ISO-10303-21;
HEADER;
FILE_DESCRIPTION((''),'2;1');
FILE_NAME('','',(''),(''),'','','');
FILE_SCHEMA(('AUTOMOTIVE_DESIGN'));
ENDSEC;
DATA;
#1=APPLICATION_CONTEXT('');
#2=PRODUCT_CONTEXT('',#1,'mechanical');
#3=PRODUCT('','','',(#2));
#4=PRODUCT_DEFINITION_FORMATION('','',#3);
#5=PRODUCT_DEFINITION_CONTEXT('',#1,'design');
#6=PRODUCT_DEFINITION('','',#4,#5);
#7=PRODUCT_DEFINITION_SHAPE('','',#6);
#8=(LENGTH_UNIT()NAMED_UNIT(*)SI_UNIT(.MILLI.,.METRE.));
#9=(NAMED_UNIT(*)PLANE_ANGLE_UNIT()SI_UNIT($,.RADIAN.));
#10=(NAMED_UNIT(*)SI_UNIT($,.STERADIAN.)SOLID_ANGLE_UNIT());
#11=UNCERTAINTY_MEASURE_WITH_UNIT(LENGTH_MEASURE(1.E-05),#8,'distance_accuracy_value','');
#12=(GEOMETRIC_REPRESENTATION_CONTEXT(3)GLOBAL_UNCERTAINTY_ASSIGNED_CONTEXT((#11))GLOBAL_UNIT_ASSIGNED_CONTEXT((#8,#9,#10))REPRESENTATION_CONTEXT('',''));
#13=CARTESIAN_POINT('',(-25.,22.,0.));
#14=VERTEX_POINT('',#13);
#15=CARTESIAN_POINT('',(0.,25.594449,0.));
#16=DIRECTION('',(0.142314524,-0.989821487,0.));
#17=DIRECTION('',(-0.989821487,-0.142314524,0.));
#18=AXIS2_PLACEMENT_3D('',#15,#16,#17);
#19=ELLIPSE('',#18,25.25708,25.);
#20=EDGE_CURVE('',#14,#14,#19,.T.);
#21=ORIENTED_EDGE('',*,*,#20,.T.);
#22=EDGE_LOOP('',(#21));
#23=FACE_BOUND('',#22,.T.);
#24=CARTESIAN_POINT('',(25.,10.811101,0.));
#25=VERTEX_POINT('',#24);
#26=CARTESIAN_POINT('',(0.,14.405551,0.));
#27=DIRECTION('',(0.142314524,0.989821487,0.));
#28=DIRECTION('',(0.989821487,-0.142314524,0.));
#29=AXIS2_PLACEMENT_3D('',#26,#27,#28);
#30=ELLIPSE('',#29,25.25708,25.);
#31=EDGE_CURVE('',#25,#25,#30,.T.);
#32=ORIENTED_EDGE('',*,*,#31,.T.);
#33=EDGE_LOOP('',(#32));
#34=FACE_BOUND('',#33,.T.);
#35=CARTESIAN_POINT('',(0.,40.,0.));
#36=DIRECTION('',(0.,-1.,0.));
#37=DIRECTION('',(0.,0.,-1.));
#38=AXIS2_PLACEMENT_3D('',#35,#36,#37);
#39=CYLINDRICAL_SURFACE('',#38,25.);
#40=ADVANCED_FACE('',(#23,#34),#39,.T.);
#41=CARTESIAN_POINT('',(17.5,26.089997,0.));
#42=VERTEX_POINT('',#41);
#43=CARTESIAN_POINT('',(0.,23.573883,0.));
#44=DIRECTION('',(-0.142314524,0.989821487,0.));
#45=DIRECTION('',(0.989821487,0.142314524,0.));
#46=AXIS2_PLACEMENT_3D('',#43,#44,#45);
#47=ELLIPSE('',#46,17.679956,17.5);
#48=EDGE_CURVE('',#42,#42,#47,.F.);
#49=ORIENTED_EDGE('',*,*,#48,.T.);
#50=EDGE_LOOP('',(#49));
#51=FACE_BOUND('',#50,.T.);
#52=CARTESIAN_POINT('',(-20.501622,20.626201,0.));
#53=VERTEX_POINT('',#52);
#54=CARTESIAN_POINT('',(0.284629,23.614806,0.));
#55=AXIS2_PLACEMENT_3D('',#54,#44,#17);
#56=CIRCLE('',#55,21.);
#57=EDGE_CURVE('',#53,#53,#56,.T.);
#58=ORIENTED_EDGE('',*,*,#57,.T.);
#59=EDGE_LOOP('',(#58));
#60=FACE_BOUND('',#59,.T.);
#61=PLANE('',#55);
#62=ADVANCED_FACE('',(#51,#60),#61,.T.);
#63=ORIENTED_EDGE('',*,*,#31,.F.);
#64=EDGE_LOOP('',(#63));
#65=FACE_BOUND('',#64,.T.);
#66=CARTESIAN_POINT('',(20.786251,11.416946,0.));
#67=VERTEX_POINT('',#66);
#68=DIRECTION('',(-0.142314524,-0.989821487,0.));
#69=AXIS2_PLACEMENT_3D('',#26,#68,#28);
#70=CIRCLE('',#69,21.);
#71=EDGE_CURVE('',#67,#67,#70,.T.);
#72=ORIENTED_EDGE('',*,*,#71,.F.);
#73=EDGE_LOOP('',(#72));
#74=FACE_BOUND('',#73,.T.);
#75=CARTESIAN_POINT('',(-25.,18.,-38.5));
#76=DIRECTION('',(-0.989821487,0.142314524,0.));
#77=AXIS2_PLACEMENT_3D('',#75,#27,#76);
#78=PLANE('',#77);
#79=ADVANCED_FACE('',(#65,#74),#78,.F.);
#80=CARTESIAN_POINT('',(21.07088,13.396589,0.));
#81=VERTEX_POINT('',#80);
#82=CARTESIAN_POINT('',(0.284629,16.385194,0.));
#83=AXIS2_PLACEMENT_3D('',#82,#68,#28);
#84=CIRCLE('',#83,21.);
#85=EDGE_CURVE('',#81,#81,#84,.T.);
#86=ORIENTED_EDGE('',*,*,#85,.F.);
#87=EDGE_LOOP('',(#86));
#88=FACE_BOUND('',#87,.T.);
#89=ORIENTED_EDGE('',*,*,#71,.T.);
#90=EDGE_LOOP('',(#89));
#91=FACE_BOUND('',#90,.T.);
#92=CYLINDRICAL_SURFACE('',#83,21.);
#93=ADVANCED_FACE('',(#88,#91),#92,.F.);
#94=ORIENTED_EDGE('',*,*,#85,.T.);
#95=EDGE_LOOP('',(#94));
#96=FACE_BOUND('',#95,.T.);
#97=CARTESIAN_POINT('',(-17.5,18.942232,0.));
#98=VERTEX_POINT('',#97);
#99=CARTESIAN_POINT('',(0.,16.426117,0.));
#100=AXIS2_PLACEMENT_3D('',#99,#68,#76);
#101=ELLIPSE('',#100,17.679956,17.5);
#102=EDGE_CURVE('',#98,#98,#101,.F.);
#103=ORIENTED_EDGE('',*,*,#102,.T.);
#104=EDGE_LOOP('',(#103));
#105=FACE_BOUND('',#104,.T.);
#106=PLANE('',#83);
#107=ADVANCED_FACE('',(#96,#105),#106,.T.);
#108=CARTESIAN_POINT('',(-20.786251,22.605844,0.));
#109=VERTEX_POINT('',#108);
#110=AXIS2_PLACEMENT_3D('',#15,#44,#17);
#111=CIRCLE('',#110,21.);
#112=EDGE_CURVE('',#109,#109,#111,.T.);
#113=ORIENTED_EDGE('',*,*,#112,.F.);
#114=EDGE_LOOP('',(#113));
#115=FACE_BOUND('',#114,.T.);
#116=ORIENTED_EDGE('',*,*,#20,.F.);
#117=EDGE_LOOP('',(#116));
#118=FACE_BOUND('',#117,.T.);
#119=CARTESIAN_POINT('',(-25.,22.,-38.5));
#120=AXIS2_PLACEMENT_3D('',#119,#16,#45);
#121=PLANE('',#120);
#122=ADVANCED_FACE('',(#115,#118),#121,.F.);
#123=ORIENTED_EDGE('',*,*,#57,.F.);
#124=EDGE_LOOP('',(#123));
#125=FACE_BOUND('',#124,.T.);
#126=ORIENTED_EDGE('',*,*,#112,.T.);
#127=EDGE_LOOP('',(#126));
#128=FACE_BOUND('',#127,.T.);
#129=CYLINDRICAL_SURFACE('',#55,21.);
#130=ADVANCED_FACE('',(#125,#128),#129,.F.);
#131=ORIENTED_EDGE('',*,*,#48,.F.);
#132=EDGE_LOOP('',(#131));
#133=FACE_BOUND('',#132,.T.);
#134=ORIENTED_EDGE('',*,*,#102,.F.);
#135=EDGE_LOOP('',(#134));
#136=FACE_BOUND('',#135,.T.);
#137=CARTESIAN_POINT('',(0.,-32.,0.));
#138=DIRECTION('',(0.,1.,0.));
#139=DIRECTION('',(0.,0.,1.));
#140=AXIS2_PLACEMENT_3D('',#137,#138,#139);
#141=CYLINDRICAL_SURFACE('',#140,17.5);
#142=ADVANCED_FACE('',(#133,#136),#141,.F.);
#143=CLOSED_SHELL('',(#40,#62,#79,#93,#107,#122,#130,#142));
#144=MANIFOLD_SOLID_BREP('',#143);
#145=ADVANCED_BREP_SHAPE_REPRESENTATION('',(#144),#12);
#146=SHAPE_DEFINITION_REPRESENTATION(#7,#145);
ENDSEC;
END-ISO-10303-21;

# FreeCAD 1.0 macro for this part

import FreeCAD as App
import Part
import Sketcher
Q = App.Units.Quantity

doc = App.newDocument("Part")
body = doc.addObject("PartDesign::Body", "Body")

sketch1 = doc.addObject("Sketcher::SketchObject", "Sketch")
body.addObject(sketch1)
sketch1.AttachmentSupport = (doc.XZ_Plane, [""])
sketch1.MapMode = "FlatFace"
sketch1.addGeometry(Part.Circle(App.Vector(0, 0, 0), App.Vector(0, 0, 1), 25), False)
sketch1.addConstraint(Sketcher.Constraint("Coincident", 0, 3, -1, 1))
sketch1.addConstraint(Sketcher.Constraint("Diameter", 0, Q("50 mm")))
pad1 = doc.addObject("PartDesign::Pad", "Pad")
body.addObject(pad1)
pad1.Profile = sketch1
pad1.Length = 40
pad1.Reversed = True

sketch2 = doc.addObject("Sketcher::SketchObject", "Sketch001")
body.addObject(sketch2)
sketch2.AttachmentSupport = (doc.XZ_Plane, [""])
sketch2.MapMode = "FlatFace"
sketch2.AttachmentOffset = App.Placement(App.Vector(0, 0, -40), App.Rotation())
sketch2.addGeometry(Part.Circle(App.Vector(0, 0, 0), App.Vector(0, 0, 1), 18), False)
sketch2.addConstraint(Sketcher.Constraint("Coincident", 0, 3, -1, 1))
sketch2.addConstraint(Sketcher.Constraint("Diameter", 0, Q("35 mm")))
pocket1 = doc.addObject("PartDesign::Pocket", "Pocket")
body.addObject(pocket1)
pocket1.Profile = sketch2
pocket1.Length = 72
pocket1.Reversed = True

sketch3 = doc.addObject("Sketcher::SketchObject", "Sketch002")
body.addObject(sketch3)
sketch3.AttachmentSupport = (doc.XY_Plane, [""])
sketch3.MapMode = "FlatFace"
sketch3.addGeometry(Part.LineSegment(App.Vector(-25, 22, 0), App.Vector(25, 29, 0)), False)
sketch3.addGeometry(Part.LineSegment(App.Vector(25, 29, 0), App.Vector(25, 44, 0)), False)
sketch3.addGeometry(Part.LineSegment(App.Vector(25, 44, 0), App.Vector(-25, 44, 0)), False)
sketch3.addGeometry(Part.LineSegment(App.Vector(-25, 44, 0), App.Vector(-25, 22, 0)), False)
sketch3.addGeometry(Part.LineSegment(App.Vector(-25, -4, 0), App.Vector(25, -4, 0)), False)
sketch3.addGeometry(Part.LineSegment(App.Vector(25, -4, 0), App.Vector(25, 11, 0)), False)
sketch3.addGeometry(Part.LineSegment(App.Vector(25, 11, 0), App.Vector(-25, 18, 0)), False)
sketch3.addGeometry(Part.LineSegment(App.Vector(-25, 18, 0), App.Vector(-25, -4, 0)), False)
sketch3.addConstraint(Sketcher.Constraint("Coincident", 0, 2, 1, 1))
sketch3.addConstraint(Sketcher.Constraint("Coincident", 1, 2, 2, 1))
sketch3.addConstraint(Sketcher.Constraint("Coincident", 2, 2, 3, 1))
sketch3.addConstraint(Sketcher.Constraint("Coincident", 3, 2, 0, 1))
sketch3.addConstraint(Sketcher.Constraint("Coincident", 4, 2, 5, 1))
sketch3.addConstraint(Sketcher.Constraint("Coincident", 5, 2, 6, 1))
sketch3.addConstraint(Sketcher.Constraint("Coincident", 6, 2, 7, 1))
sketch3.addConstraint(Sketcher.Constraint("Coincident", 7, 2, 4, 1))
sketch3.addConstraint(Sketcher.Constraint("Vertical", 1))
sketch3.addConstraint(Sketcher.Constraint("Vertical", 3))
sketch3.addConstraint(Sketcher.Constraint("Vertical", 5))
sketch3.addConstraint(Sketcher.Constraint("Vertical", 7))
sketch3.addConstraint(Sketcher.Constraint("Vertical", 1, 2, 4, 2))
sketch3.addConstraint(Sketcher.Constraint("Vertical", 3, 2, 6, 2))
sketch3.addConstraint(Sketcher.Constraint("Equal", 1, 5))
sketch3.addConstraint(Sketcher.Constraint("Equal", 3, 7))
sketch3.addConstraint(Sketcher.Constraint("Equal", 2, 4))
sketch3.addConstraint(Sketcher.Constraint("DistanceX", -1, 1, 0, 2, Q("25 mm")))
sketch3.addConstraint(Sketcher.Constraint("DistanceX", 2, 2, -1, 1, Q("25 mm")))
sketch3.addConstraint(Sketcher.Constraint("DistanceY", -1, 1, 3, 2, Q("22 mm")))
sketch3.addConstraint(Sketcher.Constraint("DistanceY", -1, 1, 6, 2, Q("18 mm")))
sketch3.addConstraint(Sketcher.Constraint("DistanceY", 3, 2, 3, 1, Q("21.75292 mm")))
sketch3.addConstraint(Sketcher.Constraint("DistanceY", -1, 1, 0, 2, Q("29.188899 mm")))
sketch3.addConstraint(Sketcher.Constraint("DistanceY", 1, 1, 1, 2, Q("15.035413 mm")))
pocket2 = doc.addObject("PartDesign::Pocket", "Pocket001")
body.addObject(pocket2)
pocket2.Profile = sketch3
pocket2.Length = 77
pocket2.Midplane = True

sketch4 = doc.addObject("Sketcher::SketchObject", "Sketch003")
body.addObject(sketch4)
sketch4.Placement = App.Placement(App.Vector(-3.605387, 25.076074, 0), App.Rotation(App.Vector(0.989821487, 0.142314524, 0), App.Vector(0, 0, -1), App.Vector(-0.142314524, 0.989821487, 0), "ZXY"))
sketch4.addGeometry(Part.Circle(App.Vector(4, 0, 0), App.Vector(0, 0, 1), 21), False)
sketch4.addConstraint(Sketcher.Constraint("PointOnObject", 0, 3, -1))
sketch4.addConstraint(Sketcher.Constraint("Diameter", 0, Q("42 mm")))
sketch4.addConstraint(Sketcher.Constraint("DistanceX", -1, 1, 0, 3, Q("3.642462 mm")))
pocket3 = doc.addObject("PartDesign::Pocket", "Pocket002")
body.addObject(pocket3)
pocket3.Profile = sketch4
pocket3.Length = 2

sketch5 = doc.addObject("Sketcher::SketchObject", "Sketch004")
body.addObject(sketch5)
sketch5.Placement = App.Placement(App.Vector(2.029252, 14.113789, 0), App.Rotation(App.Vector(0.989821487, -0.142314524, 0), App.Vector(0, 0, 1), App.Vector(-0.142314524, -0.989821487, 0), "ZXY"))
sketch5.addGeometry(Part.Circle(App.Vector(-2, 0, 0), App.Vector(0, 0, 1), 21), False)
sketch5.addConstraint(Sketcher.Constraint("PointOnObject", 0, 3, -1))
sketch5.addConstraint(Sketcher.Constraint("Diameter", 0, Q("42 mm")))
sketch5.addConstraint(Sketcher.Constraint("DistanceX", 0, 3, -1, 1, Q("2.050119 mm")))
pocket4 = doc.addObject("PartDesign::Pocket", "Pocket003")
body.addObject(pocket4)
pocket4.Profile = sketch5
pocket4.Length = 2

doc.recompute()
